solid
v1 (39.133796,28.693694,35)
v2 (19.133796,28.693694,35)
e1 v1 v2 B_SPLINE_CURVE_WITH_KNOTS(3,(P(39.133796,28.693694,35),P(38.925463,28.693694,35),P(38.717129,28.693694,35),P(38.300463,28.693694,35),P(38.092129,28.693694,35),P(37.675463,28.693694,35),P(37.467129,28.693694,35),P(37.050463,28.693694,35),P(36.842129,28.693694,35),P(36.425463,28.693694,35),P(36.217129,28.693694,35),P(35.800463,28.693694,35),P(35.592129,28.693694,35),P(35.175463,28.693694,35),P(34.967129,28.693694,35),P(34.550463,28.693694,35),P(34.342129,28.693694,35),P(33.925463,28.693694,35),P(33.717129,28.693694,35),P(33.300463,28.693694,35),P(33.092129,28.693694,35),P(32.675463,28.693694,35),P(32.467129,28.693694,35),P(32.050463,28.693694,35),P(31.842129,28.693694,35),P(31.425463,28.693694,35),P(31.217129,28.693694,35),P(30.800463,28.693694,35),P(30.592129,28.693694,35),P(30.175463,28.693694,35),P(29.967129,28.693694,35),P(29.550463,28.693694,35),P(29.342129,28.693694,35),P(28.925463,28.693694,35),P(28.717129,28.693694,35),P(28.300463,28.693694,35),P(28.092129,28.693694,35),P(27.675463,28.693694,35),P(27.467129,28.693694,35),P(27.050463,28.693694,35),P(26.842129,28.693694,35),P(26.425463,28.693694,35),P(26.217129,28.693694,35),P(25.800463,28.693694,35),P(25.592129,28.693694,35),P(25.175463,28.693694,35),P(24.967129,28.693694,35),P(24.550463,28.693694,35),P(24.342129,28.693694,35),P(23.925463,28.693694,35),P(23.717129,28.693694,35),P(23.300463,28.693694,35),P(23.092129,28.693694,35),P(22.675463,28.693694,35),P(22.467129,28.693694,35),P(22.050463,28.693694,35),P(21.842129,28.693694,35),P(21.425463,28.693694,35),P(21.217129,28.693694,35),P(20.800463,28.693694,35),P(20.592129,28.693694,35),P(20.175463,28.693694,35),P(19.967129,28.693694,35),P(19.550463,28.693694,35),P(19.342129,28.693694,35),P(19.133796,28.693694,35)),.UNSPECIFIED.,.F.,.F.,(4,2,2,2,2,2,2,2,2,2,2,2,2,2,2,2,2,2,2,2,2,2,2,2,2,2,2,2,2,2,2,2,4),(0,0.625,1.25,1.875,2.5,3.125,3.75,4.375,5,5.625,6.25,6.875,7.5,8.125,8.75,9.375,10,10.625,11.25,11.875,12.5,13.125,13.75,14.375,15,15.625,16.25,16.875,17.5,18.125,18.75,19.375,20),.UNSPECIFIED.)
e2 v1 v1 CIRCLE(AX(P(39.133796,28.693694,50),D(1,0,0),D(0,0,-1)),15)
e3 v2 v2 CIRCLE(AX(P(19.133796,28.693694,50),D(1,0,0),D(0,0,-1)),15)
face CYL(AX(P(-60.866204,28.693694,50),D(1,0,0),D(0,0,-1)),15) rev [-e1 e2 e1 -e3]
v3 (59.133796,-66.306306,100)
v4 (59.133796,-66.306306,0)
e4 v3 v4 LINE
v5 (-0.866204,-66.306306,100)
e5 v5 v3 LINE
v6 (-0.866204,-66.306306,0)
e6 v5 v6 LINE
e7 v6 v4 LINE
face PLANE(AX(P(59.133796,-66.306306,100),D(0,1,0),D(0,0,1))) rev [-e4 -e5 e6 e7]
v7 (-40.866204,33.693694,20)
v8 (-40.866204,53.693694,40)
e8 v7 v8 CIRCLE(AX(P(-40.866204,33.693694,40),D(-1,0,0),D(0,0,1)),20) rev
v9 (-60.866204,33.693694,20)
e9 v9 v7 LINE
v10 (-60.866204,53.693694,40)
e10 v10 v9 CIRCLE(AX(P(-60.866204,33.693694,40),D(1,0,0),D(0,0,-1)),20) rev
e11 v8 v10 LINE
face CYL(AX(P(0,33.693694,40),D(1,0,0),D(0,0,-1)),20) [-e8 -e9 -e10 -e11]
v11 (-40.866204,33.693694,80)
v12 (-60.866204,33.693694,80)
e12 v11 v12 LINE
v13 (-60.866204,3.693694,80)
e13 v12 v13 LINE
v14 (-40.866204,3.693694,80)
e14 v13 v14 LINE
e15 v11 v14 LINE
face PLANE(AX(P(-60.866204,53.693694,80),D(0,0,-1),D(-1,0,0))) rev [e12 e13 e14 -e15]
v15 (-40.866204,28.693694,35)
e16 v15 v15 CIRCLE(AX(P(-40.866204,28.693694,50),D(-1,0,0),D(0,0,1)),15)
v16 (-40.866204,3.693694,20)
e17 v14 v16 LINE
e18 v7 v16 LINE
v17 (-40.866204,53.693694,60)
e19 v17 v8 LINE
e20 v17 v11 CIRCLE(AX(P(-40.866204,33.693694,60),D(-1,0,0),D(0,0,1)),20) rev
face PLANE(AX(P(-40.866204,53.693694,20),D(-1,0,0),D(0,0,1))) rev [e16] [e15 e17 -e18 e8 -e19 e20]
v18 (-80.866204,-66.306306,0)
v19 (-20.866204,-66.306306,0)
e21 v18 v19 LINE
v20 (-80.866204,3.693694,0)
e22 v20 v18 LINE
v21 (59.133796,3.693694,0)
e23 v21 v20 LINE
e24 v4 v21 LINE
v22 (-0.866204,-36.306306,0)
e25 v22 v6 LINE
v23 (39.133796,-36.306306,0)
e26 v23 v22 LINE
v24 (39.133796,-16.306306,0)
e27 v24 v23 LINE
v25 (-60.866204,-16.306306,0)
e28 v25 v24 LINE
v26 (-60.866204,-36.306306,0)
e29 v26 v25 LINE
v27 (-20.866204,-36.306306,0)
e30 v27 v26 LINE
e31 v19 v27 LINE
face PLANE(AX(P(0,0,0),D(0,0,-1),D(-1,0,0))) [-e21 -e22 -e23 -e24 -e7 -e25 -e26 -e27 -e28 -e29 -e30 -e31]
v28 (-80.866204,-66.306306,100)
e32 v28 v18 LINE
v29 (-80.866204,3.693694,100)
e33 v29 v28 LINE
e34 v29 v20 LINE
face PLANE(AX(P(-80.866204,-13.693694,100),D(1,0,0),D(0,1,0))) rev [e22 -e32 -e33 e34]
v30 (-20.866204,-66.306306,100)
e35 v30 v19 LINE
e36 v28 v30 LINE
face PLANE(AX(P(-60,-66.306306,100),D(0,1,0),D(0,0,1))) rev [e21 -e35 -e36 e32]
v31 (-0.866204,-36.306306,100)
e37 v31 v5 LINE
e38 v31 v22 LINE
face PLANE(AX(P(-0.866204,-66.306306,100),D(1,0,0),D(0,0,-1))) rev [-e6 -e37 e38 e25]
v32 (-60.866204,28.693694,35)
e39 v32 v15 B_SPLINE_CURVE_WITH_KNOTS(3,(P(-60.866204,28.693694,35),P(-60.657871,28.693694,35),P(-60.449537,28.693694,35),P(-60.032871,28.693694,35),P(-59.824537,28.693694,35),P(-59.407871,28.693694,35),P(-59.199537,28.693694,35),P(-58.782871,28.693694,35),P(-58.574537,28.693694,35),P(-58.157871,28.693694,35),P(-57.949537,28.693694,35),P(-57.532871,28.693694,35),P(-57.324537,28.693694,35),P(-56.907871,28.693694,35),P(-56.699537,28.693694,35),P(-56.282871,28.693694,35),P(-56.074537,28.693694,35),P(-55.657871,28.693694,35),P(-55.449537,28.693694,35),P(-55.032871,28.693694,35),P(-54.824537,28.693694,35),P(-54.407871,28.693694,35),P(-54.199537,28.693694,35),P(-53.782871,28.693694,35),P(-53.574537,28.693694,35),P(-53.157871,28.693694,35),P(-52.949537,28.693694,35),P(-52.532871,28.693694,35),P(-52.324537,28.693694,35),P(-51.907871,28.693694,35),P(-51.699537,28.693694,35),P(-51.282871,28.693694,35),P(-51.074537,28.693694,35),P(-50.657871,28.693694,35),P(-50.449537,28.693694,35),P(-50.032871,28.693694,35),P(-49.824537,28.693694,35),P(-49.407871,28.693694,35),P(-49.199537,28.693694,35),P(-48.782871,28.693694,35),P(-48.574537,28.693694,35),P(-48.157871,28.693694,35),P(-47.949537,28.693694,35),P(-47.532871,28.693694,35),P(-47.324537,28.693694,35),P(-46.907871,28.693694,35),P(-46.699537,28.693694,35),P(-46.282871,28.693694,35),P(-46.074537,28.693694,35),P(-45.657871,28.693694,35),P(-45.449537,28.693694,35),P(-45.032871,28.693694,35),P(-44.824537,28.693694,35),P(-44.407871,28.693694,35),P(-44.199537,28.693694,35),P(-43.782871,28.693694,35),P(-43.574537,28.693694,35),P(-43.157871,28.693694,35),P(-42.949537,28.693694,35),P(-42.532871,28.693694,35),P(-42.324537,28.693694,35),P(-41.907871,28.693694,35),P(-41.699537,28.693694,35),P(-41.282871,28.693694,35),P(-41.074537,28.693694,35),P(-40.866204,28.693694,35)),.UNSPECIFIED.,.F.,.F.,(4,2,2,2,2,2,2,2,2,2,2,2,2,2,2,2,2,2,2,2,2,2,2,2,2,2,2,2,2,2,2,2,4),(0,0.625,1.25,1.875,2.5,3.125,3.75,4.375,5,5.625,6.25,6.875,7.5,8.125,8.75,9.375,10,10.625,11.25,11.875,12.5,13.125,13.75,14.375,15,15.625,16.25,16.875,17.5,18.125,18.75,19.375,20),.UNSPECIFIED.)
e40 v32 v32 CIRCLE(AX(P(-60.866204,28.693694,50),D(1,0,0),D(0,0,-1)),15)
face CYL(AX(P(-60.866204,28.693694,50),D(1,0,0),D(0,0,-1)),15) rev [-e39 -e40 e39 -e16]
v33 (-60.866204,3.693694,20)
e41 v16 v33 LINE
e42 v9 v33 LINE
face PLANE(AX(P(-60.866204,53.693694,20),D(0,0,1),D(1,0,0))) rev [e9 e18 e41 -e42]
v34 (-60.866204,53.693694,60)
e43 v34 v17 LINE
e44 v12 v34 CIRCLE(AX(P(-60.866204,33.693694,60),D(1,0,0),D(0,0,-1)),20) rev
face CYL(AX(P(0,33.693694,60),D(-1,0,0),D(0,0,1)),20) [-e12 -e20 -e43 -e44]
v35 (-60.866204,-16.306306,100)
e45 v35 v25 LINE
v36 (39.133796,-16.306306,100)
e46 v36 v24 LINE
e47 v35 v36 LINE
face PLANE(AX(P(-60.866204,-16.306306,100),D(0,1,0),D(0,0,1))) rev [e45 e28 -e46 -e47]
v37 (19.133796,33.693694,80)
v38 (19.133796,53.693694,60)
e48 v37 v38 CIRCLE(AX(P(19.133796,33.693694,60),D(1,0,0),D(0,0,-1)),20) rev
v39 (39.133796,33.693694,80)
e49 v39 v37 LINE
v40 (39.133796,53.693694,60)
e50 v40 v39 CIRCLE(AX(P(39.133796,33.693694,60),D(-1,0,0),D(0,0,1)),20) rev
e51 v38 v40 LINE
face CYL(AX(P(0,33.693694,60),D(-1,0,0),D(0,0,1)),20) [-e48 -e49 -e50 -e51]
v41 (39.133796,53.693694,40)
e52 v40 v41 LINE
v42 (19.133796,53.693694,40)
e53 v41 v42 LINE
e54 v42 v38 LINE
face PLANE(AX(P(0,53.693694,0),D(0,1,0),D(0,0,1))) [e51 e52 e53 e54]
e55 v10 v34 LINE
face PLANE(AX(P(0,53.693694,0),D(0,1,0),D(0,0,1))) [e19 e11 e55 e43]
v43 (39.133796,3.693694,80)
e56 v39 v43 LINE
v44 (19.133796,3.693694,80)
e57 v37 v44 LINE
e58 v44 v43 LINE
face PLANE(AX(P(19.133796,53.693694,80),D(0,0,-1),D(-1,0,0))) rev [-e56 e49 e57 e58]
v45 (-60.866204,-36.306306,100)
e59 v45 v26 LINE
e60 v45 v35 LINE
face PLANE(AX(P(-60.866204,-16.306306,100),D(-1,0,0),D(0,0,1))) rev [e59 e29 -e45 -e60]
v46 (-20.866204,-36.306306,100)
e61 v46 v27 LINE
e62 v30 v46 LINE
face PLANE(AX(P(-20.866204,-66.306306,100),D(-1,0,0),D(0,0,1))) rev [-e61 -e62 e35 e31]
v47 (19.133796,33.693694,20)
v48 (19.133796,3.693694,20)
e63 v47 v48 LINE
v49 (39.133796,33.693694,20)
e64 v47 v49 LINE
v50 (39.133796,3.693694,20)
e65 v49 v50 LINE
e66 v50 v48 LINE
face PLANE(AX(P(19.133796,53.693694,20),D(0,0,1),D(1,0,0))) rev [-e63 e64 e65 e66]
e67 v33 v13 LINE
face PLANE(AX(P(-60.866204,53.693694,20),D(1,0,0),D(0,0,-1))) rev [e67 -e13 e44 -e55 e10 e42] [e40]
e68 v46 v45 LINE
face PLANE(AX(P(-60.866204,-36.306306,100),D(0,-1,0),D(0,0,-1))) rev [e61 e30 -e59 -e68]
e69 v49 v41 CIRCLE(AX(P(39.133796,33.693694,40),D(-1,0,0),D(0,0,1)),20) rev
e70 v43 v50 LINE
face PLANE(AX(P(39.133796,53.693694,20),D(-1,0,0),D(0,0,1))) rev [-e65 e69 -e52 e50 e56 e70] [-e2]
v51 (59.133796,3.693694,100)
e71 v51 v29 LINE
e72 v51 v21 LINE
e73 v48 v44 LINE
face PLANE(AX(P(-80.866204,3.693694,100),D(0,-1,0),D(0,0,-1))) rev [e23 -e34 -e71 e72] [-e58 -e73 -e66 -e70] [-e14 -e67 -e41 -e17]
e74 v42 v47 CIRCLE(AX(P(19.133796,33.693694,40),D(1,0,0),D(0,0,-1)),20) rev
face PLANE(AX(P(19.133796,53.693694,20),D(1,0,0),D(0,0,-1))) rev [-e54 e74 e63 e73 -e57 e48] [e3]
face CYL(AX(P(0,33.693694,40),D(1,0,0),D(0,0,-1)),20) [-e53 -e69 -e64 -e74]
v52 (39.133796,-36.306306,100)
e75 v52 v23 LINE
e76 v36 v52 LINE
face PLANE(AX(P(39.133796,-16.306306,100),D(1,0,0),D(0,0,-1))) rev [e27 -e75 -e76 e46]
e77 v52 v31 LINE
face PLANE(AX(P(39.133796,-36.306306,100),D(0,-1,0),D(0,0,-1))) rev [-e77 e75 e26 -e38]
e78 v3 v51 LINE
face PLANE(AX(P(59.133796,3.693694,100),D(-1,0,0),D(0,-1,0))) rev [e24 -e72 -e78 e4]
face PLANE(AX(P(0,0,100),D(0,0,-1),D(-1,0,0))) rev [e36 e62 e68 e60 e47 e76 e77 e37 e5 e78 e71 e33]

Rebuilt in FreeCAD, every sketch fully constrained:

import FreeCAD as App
import Part
import Sketcher


def edges_at(feature, points):
    """Names of the edges that pass closest to the given points."""
    edges = feature.Shape.Edges
    near = lambda p: min(range(len(edges)), key=lambda i: edges[i].distToShape(Part.Vertex(*p))[0])
    return sorted({f"Edge{near(p) + 1}" for p in points})

doc = App.newDocument("Part")
body = doc.addObject("PartDesign::Body", "Body")

# Sketch on XY plane
sketch1 = body.newObject("Sketcher::SketchObject", "Sketch")
sketch1.AttachmentSupport = (doc.getObject("XY_Plane"), [""])
sketch1.MapMode = "FlatFace"
sketch1.addGeometry([
    Part.LineSegment(App.Vector(59.133796, 3.693694, 0), App.Vector(-80.866204, 3.693694, 0)),  # 0
    Part.LineSegment(App.Vector(-80.866204, 3.693694, 0), App.Vector(-80.866204, -66.306306, 0)),  # 1
    Part.LineSegment(App.Vector(-80.866204, -66.306306, 0), App.Vector(-20.866204, -66.306306, 0)),  # 2
    Part.LineSegment(App.Vector(-20.866204, -66.306306, 0), App.Vector(-20.866204, -36.306306, 0)),  # 3
    Part.LineSegment(App.Vector(-20.866204, -36.306306, 0), App.Vector(-60.866204, -36.306306, 0)),  # 4
    Part.LineSegment(App.Vector(-60.866204, -36.306306, 0), App.Vector(-60.866204, -16.306306, 0)),  # 5
    Part.LineSegment(App.Vector(-60.866204, -16.306306, 0), App.Vector(39.133796, -16.306306, 0)),  # 6
    Part.LineSegment(App.Vector(39.133796, -16.306306, 0), App.Vector(39.133796, -36.306306, 0)),  # 7
    Part.LineSegment(App.Vector(39.133796, -36.306306, 0), App.Vector(-0.866204, -36.306306, 0)),  # 8
    Part.LineSegment(App.Vector(-0.866204, -36.306306, 0), App.Vector(-0.866204, -66.306306, 0)),  # 9
    Part.LineSegment(App.Vector(-0.866204, -66.306306, 0), App.Vector(59.133796, -66.306306, 0)),  # 10
    Part.LineSegment(App.Vector(59.133796, -66.306306, 0), App.Vector(59.133796, 3.693694, 0)),  # 11
], False)
sketch1.addConstraint([
    Sketcher.Constraint("Coincident", 0, 2, 1, 1),
    Sketcher.Constraint("Coincident", 1, 2, 2, 1),
    Sketcher.Constraint("Coincident", 2, 2, 3, 1),
    Sketcher.Constraint("Coincident", 3, 2, 4, 1),
    Sketcher.Constraint("Coincident", 4, 2, 5, 1),
    Sketcher.Constraint("Coincident", 5, 2, 6, 1),
    Sketcher.Constraint("Coincident", 6, 2, 7, 1),
    Sketcher.Constraint("Coincident", 7, 2, 8, 1),
    Sketcher.Constraint("Coincident", 8, 2, 9, 1),
    Sketcher.Constraint("Coincident", 9, 2, 10, 1),
    Sketcher.Constraint("Coincident", 10, 2, 11, 1),
    Sketcher.Constraint("Coincident", 11, 2, 0, 1),
    Sketcher.Constraint("Horizontal", 0),
    Sketcher.Constraint("Vertical", 1),
    Sketcher.Constraint("Horizontal", 2),
    Sketcher.Constraint("Vertical", 3),
    Sketcher.Constraint("Horizontal", 4),
    Sketcher.Constraint("Vertical", 5),
    Sketcher.Constraint("Horizontal", 6),
    Sketcher.Constraint("Vertical", 7),
    Sketcher.Constraint("Horizontal", 8),
    Sketcher.Constraint("Vertical", 9),
    Sketcher.Constraint("Horizontal", 10),
    Sketcher.Constraint("Vertical", 11),
    Sketcher.Constraint("Horizontal", 4, 2, 7, 2),
    Sketcher.Constraint("Horizontal", 2, 2, 9, 2),
    Sketcher.Constraint("Equal", 4, 8),
    Sketcher.Constraint("Equal", 2, 10),
    Sketcher.Constraint("DistanceX", 0, 2, 0, 1, 140.0),
    Sketcher.Constraint("DistanceX", 2, 1, 2, 2, 60.0),
    Sketcher.Constraint("DistanceX", 4, 2, 4, 1, 40.0),
    Sketcher.Constraint("DistanceY", 1, 2, 1, 1, 70.0),
    Sketcher.Constraint("DistanceY", 3, 1, 3, 2, 30.0),
    Sketcher.Constraint("DistanceY", 5, 1, 5, 2, 20.0),
    Sketcher.Constraint("DistanceX", 0, 2, -1, 1, 80.866204),
    Sketcher.Constraint("DistanceY", -1, 1, 0, 2, 3.693694),
])
pad1 = body.newObject("PartDesign::Pad", "Pad")
pad1.Profile = sketch1
pad1.Length = 100

# Sketch on XZ plane
sketch2 = body.newObject("Sketcher::SketchObject", "Sketch001")
sketch2.AttachmentSupport = (doc.getObject("XZ_Plane"), [""])
sketch2.MapMode = "FlatFace"
sketch2.AttachmentOffset = App.Placement(App.Vector(0, 0, -3.693694), App.Rotation())
sketch2.addGeometry([
    Part.LineSegment(App.Vector(-60.866204, 20, 0), App.Vector(-60.866204, 80, 0)),  # 0
    Part.LineSegment(App.Vector(-60.866204, 80, 0), App.Vector(-40.866204, 80, 0)),  # 1
    Part.LineSegment(App.Vector(-40.866204, 80, 0), App.Vector(-40.866204, 20, 0)),  # 2
    Part.LineSegment(App.Vector(-40.866204, 20, 0), App.Vector(-60.866204, 20, 0)),  # 3
    Part.LineSegment(App.Vector(19.133796, 20, 0), App.Vector(19.133796, 80, 0)),  # 4
    Part.LineSegment(App.Vector(19.133796, 80, 0), App.Vector(39.133796, 80, 0)),  # 5
    Part.LineSegment(App.Vector(39.133796, 80, 0), App.Vector(39.133796, 20, 0)),  # 6
    Part.LineSegment(App.Vector(39.133796, 20, 0), App.Vector(19.133796, 20, 0)),  # 7
], False)
sketch2.addConstraint([
    Sketcher.Constraint("Coincident", 0, 2, 1, 1),
    Sketcher.Constraint("Coincident", 1, 2, 2, 1),
    Sketcher.Constraint("Coincident", 2, 2, 3, 1),
    Sketcher.Constraint("Coincident", 3, 2, 0, 1),
    Sketcher.Constraint("Coincident", 4, 2, 5, 1),
    Sketcher.Constraint("Coincident", 5, 2, 6, 1),
    Sketcher.Constraint("Coincident", 6, 2, 7, 1),
    Sketcher.Constraint("Coincident", 7, 2, 4, 1),
    Sketcher.Constraint("Vertical", 0),
    Sketcher.Constraint("Horizontal", 1),
    Sketcher.Constraint("Vertical", 2),
    Sketcher.Constraint("Horizontal", 3),
    Sketcher.Constraint("Vertical", 4),
    Sketcher.Constraint("Horizontal", 5),
    Sketcher.Constraint("Vertical", 6),
    Sketcher.Constraint("Horizontal", 7),
    Sketcher.Constraint("Horizontal", 1, 2, 4, 2),
    Sketcher.Constraint("Horizontal", 3, 2, 6, 2),
    Sketcher.Constraint("Equal", 3, 5),
    Sketcher.Constraint("DistanceX", 1, 1, 1, 2, 20.0),
    Sketcher.Constraint("DistanceY", 0, 1, 0, 2, 60.0),
    Sketcher.Constraint("DistanceY", -1, 1, 0, 2, 80.0),
    Sketcher.Constraint("DistanceX", 1, 2, 4, 2, 60.0),
    Sketcher.Constraint("DistanceX", 0, 2, -1, 1, 60.866204),
])
pad2 = body.newObject("PartDesign::Pad", "Pad001")
pad2.Profile = sketch2
pad2.Length = 50
pad2.Reversed = True
doc.recompute()

fillet = body.newObject("PartDesign::Fillet", "Fillet")
fillet.Base = (pad2, edges_at(pad2, [
    (-50.866, 53.694, 20),
    (-50.866, 53.694, 80),
    (29.134, 53.694, 20),
    (29.134, 53.694, 80),
]))
fillet.Radius = 20

# Sketch on YZ plane
sketch3 = body.newObject("Sketcher::SketchObject", "Sketch002")
sketch3.AttachmentSupport = (doc.getObject("YZ_Plane"), [""])
sketch3.MapMode = "FlatFace"
sketch3.AttachmentOffset = App.Placement(App.Vector(0, 0, 39.133796), App.Rotation())
sketch3.addGeometry(Part.Circle(App.Vector(28.693694, 50, 0), App.Vector(0, 0, 1), 15), False)
sketch3.addConstraint([
    Sketcher.Constraint("Diameter", 0, 30.0),
    Sketcher.Constraint("DistanceY", -1, 1, 0, 3, 50.0),
    Sketcher.Constraint("DistanceX", -1, 1, 0, 3, 28.693694),
])
pocket1 = body.newObject("PartDesign::Pocket", "Pocket")
pocket1.Profile = sketch3
pocket1.Length = 100

doc.recompute()
